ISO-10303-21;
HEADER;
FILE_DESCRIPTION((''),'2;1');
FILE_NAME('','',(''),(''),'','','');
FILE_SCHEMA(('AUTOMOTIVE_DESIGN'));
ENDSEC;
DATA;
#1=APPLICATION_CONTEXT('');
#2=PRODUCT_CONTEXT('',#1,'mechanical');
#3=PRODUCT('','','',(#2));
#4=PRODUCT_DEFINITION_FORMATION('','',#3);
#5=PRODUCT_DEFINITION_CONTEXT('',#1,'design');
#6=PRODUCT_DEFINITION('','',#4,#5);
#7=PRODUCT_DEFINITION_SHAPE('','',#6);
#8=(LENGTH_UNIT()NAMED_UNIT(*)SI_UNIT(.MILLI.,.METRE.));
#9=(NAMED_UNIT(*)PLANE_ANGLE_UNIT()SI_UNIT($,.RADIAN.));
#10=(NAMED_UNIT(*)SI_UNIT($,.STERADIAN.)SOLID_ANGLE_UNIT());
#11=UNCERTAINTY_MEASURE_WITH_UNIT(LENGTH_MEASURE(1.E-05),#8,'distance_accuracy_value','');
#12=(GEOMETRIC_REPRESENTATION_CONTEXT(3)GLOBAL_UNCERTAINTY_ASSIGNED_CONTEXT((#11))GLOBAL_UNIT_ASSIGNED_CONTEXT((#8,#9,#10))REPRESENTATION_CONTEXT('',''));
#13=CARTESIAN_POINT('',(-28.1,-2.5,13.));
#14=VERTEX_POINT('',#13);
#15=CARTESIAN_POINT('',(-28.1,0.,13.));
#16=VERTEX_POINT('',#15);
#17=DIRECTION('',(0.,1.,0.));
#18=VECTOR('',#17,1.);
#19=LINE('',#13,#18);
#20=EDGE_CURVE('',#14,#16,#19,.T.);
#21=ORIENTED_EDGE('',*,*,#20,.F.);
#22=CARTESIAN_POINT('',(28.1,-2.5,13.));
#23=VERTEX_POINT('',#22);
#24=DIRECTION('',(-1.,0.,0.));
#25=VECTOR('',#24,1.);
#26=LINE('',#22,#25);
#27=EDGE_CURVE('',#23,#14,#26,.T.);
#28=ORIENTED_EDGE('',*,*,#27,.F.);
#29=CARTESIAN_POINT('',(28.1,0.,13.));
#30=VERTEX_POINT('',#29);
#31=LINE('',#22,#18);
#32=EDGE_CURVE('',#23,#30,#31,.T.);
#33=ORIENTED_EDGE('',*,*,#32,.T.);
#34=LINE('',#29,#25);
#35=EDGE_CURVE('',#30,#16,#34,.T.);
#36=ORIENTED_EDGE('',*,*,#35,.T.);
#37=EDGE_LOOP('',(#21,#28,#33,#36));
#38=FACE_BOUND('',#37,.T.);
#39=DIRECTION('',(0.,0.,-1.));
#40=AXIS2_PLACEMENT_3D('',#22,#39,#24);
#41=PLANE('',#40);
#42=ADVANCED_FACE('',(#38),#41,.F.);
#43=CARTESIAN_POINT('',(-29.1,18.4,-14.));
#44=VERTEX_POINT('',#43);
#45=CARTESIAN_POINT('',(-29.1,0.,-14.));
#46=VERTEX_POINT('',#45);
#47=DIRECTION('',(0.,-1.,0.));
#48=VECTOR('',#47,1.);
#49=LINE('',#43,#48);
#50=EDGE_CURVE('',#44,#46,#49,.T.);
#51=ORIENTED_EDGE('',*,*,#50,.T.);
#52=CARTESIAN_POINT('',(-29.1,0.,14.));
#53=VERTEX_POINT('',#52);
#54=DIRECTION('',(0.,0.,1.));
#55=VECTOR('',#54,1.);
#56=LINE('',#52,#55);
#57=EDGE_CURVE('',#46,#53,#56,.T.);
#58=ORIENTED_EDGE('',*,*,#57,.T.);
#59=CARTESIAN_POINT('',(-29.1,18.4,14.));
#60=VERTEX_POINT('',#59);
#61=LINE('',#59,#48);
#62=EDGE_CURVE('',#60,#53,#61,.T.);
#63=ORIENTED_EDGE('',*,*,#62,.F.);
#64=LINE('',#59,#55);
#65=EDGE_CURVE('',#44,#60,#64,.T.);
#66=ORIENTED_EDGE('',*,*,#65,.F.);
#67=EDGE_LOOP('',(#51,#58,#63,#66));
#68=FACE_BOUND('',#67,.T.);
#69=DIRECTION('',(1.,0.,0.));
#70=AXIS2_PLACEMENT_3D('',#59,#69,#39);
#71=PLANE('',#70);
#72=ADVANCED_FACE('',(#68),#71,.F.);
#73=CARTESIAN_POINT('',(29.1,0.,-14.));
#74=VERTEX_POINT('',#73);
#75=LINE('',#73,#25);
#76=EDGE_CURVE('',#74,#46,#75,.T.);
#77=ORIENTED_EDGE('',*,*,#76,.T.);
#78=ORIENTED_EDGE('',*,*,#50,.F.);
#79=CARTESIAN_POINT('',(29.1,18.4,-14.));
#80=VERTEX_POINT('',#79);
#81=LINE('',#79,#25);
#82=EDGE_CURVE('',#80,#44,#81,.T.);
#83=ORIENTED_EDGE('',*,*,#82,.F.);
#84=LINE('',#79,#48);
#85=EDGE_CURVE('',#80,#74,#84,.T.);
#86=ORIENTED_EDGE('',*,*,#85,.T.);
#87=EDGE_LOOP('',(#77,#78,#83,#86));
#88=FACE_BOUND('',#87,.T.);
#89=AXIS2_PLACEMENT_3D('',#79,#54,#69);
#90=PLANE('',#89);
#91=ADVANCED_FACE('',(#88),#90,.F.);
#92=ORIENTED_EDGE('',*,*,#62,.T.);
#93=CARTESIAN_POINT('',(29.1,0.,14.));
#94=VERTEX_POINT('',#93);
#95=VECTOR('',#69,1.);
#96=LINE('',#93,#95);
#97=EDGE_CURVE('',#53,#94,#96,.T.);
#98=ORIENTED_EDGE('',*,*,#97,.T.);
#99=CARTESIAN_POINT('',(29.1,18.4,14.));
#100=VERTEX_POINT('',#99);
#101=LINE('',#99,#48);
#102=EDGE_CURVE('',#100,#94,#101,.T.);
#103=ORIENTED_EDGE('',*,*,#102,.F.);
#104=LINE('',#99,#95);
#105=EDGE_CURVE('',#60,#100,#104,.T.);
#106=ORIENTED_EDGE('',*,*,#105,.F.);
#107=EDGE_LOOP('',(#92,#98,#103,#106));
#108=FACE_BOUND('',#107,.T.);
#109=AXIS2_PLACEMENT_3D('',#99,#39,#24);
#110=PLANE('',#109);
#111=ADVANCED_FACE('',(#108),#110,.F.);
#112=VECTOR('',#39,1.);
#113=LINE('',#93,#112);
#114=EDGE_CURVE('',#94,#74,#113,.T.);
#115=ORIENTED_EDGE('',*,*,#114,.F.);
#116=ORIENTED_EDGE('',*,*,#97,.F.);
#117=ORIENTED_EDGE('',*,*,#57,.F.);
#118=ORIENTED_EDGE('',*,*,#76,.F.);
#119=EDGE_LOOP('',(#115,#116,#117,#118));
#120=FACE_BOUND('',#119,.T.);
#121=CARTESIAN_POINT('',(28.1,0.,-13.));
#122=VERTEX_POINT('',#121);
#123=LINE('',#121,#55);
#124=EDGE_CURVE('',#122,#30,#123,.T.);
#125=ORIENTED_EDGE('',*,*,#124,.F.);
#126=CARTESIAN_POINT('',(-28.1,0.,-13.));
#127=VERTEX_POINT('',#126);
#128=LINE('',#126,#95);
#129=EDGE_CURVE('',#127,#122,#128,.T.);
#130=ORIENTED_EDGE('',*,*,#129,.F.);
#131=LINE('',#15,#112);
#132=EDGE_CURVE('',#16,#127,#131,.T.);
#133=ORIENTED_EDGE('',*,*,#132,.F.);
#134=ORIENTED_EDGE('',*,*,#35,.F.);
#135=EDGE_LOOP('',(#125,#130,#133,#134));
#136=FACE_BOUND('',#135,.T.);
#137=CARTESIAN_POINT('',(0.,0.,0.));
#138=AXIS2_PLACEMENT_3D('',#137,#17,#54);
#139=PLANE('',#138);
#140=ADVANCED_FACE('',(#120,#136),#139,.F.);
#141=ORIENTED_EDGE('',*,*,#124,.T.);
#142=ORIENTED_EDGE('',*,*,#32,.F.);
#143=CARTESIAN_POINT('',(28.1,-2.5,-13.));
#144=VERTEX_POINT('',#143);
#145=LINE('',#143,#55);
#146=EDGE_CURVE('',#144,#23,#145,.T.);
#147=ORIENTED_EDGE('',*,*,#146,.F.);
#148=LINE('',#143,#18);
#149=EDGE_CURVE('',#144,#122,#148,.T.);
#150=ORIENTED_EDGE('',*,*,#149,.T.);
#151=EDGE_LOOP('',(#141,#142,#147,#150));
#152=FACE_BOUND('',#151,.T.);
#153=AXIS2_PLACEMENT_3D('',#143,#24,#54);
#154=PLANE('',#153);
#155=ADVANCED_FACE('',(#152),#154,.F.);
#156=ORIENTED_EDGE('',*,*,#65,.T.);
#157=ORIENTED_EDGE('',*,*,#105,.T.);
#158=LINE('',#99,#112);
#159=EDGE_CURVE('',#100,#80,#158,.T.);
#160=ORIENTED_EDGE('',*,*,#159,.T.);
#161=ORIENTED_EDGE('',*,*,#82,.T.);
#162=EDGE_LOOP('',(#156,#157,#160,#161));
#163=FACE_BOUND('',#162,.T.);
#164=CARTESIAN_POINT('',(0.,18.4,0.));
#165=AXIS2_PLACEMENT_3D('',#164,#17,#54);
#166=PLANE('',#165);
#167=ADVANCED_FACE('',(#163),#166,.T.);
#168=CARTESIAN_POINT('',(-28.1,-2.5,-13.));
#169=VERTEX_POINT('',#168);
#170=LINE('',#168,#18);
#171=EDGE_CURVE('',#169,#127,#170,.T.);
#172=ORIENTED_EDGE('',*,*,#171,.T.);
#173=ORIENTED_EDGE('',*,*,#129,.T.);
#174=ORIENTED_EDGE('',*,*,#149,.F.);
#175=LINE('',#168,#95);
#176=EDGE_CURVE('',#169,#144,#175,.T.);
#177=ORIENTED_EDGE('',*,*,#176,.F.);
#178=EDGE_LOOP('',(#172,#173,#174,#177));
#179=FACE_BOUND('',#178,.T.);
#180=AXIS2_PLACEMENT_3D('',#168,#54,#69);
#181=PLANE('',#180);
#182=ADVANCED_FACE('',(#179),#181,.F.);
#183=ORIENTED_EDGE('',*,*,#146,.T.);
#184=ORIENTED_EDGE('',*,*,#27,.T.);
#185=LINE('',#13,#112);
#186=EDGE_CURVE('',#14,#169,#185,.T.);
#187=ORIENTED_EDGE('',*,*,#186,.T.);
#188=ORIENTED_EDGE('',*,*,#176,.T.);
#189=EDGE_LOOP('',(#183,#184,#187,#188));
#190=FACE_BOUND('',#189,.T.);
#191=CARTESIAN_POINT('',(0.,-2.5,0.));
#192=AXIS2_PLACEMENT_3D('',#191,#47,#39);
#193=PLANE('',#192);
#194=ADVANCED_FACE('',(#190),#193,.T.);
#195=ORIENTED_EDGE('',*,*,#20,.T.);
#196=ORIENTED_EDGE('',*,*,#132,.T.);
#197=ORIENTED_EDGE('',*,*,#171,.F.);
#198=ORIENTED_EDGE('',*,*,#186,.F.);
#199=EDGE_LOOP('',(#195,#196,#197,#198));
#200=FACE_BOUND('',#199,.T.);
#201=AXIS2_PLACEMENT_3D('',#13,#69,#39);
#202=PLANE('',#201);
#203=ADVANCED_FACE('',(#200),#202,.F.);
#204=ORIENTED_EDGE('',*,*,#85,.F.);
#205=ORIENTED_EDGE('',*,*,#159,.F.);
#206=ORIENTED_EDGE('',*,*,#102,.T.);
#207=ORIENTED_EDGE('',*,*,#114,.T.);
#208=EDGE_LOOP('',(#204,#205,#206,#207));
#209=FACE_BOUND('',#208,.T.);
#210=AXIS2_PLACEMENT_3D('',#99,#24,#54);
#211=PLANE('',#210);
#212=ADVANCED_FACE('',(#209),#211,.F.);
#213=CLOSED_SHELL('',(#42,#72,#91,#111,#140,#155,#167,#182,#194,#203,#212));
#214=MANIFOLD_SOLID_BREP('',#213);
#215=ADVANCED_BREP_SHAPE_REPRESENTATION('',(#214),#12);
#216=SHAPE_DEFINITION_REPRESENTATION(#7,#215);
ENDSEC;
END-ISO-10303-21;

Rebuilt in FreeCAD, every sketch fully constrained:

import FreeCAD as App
import Part
import Sketcher

V = App.Vector
Q = App.Units.Quantity


def add_polygon(sketch, points):
    """Adds a closed chain of lines whose ends are joined by coincident constraints."""
    first, n = sketch.GeometryCount, len(points)
    for a, b in zip(points, points[1:] + points[:1]):
        sketch.addGeometry(Part.LineSegment(App.Vector(*a, 0), App.Vector(*b, 0)), False)
    for i in range(n):
        sketch.addConstraint(Sketcher.Constraint("Coincident", first + i, 2, first + (i + 1) % n, 1))

doc = App.newDocument("Part")
body = doc.addObject("PartDesign::Body", "Body")

sketch1 = body.newObject("Sketcher::SketchObject", "Sketch")
sketch1.AttachmentSupport = (doc.getObject("XZ_Plane"), [""])
sketch1.MapMode = "FlatFace"
add_polygon(sketch1, [(-29, -14), (-29, 14), (29, 14), (29, -14)])
sketch1.addConstraint([
    Sketcher.Constraint("Vertical", 0),
    Sketcher.Constraint("Horizontal", 1),
    Sketcher.Constraint("Vertical", 2),
    Sketcher.Constraint("Horizontal", 3),
    Sketcher.Constraint("Symmetric", 0, 2, 2, 2, -1, 1),
    Sketcher.Constraint("DistanceY", 0, 1, 0, 2, Q("28 mm")),
    Sketcher.Constraint("DistanceX", 1, 1, 1, 2, Q("58.2 mm")),
])
pad1 = body.newObject("PartDesign::Pad", "Pad")
pad1.Profile = sketch1
pad1.Length = 18.4
pad1.Reversed = True

sketch2 = body.newObject("Sketcher::SketchObject", "Sketch001")
sketch2.AttachmentSupport = (doc.getObject("XZ_Plane"), [""])
sketch2.MapMode = "FlatFace"
add_polygon(sketch2, [(-28, 13), (-28, -13), (28, -13), (28, 13)])
sketch2.addConstraint([
    Sketcher.Constraint("Vertical", 0),
    Sketcher.Constraint("Horizontal", 1),
    Sketcher.Constraint("Vertical", 2),
    Sketcher.Constraint("Horizontal", 3),
    Sketcher.Constraint("Symmetric", 0, 2, 2, 2, -1, 1),
    Sketcher.Constraint("DistanceY", 0, 2, 0, 1, Q("26 mm")),
    Sketcher.Constraint("DistanceX", 1, 1, 1, 2, Q("56.2 mm")),
])
pad2 = body.newObject("PartDesign::Pad", "Pad001")
pad2.Profile = sketch2
pad2.Length = 2.5

doc.recompute()
